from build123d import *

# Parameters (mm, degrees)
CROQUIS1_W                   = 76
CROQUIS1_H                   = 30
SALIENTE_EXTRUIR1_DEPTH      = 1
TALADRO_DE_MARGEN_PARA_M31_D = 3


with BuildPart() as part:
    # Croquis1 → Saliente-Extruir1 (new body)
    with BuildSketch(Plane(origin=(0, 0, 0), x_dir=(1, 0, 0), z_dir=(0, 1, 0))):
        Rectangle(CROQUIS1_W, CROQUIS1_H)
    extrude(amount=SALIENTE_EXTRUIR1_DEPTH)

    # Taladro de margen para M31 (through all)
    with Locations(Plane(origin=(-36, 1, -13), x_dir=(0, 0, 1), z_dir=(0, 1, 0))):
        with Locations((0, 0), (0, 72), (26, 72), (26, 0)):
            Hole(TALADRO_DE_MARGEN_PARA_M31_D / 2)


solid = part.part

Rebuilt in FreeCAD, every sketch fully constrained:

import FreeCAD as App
import Part
import Sketcher
from FreeCAD import Vector
Q = App.Units.Quantity


def add_polygon(sketch, points):
    """Adds a closed chain of lines whose ends are joined by coincident constraints."""
    first, n = sketch.GeometryCount, len(points)
    for a, b in zip(points, points[1:] + points[:1]):
        sketch.addGeometry(Part.LineSegment(App.Vector(*a, 0), App.Vector(*b, 0)), False)
    for i in range(n):
        sketch.addConstraint(Sketcher.Constraint("Coincident", first + i, 2, first + (i + 1) % n, 1))

doc = App.newDocument("Part")
body = doc.addObject("PartDesign::Body", "Body")

sketch1 = doc.addObject("Sketcher::SketchObject", "Sketch")
body.addObject(sketch1)
sketch1.AttachmentSupport = (doc.XZ_Plane, [""])
sketch1.MapMode = "FlatFace"
add_polygon(sketch1, [(-38, -15), (-38, 15), (38, 15), (38, -15)])
sketch1.addConstraint(Sketcher.Constraint("Vertical", 0))
sketch1.addConstraint(Sketcher.Constraint("Horizontal", 1))
sketch1.addConstraint(Sketcher.Constraint("Vertical", 2))
sketch1.addConstraint(Sketcher.Constraint("Horizontal", 3))
sketch1.addConstraint(Sketcher.Constraint("Symmetric", 0, 2, 2, 2, -1, 1))
sketch1.addConstraint(Sketcher.Constraint("DistanceX", 1, 1, 1, 2, Q("76 mm")))
sketch1.addConstraint(Sketcher.Constraint("DistanceY", 0, 1, 0, 2, Q("30 mm")))
pad1 = doc.addObject("PartDesign::Pad", "Pad")
body.addObject(pad1)
pad1.Profile = sketch1
pad1.Length = 1
pad1.Reversed = True

sketch2 = doc.addObject("Sketcher::SketchObject", "Sketch001")
body.addObject(sketch2)
sketch2.AttachmentSupport = (doc.XZ_Plane, [""])
sketch2.MapMode = "FlatFace"
sketch2.AttachmentOffset = App.Placement(Vector(0, 0, -1), App.Rotation())
sketch2.addGeometry(Part.Circle(Vector(-36, -13, 0), Vector(0, 0, 1), 1.5), False)
sketch2.addGeometry(Part.Circle(Vector(36, -13, 0), Vector(0, 0, 1), 1.5), False)
sketch2.addGeometry(Part.Circle(Vector(36, 13, 0), Vector(0, 0, 1), 1.5), False)
sketch2.addGeometry(Part.Circle(Vector(-36, 13, 0), Vector(0, 0, 1), 1.5), False)
sketch2.addConstraint(Sketcher.Constraint("Equal", 0, 1))
sketch2.addConstraint(Sketcher.Constraint("Equal", 1, 2))
sketch2.addConstraint(Sketcher.Constraint("Equal", 2, 3))
sketch2.addConstraint(Sketcher.Constraint("Symmetric", 0, 3, 2, 3, -1, 1))
sketch2.addConstraint(Sketcher.Constraint("Symmetric", 1, 3, 3, 3, -1, 1))
sketch2.addConstraint(Sketcher.Constraint("Symmetric", 0, 3, 1, 3, -2))
sketch2.addConstraint(Sketcher.Constraint("Diameter", 0, Q("3 mm")))
sketch2.addConstraint(Sketcher.Constraint("DistanceX", 0, 3, -1, 1, Q("36 mm")))
sketch2.addConstraint(Sketcher.Constraint("DistanceY", 0, 3, -1, 1, Q("13 mm")))
doc.recompute()
hole = doc.addObject("PartDesign::Hole", "Hole")
body.addObject(hole)
hole.Profile = sketch2
hole.ThreadType = "None"
hole.Diameter = 3
hole.DepthType = "ThroughAll"
hole.Reversed = True

doc.recompute()
